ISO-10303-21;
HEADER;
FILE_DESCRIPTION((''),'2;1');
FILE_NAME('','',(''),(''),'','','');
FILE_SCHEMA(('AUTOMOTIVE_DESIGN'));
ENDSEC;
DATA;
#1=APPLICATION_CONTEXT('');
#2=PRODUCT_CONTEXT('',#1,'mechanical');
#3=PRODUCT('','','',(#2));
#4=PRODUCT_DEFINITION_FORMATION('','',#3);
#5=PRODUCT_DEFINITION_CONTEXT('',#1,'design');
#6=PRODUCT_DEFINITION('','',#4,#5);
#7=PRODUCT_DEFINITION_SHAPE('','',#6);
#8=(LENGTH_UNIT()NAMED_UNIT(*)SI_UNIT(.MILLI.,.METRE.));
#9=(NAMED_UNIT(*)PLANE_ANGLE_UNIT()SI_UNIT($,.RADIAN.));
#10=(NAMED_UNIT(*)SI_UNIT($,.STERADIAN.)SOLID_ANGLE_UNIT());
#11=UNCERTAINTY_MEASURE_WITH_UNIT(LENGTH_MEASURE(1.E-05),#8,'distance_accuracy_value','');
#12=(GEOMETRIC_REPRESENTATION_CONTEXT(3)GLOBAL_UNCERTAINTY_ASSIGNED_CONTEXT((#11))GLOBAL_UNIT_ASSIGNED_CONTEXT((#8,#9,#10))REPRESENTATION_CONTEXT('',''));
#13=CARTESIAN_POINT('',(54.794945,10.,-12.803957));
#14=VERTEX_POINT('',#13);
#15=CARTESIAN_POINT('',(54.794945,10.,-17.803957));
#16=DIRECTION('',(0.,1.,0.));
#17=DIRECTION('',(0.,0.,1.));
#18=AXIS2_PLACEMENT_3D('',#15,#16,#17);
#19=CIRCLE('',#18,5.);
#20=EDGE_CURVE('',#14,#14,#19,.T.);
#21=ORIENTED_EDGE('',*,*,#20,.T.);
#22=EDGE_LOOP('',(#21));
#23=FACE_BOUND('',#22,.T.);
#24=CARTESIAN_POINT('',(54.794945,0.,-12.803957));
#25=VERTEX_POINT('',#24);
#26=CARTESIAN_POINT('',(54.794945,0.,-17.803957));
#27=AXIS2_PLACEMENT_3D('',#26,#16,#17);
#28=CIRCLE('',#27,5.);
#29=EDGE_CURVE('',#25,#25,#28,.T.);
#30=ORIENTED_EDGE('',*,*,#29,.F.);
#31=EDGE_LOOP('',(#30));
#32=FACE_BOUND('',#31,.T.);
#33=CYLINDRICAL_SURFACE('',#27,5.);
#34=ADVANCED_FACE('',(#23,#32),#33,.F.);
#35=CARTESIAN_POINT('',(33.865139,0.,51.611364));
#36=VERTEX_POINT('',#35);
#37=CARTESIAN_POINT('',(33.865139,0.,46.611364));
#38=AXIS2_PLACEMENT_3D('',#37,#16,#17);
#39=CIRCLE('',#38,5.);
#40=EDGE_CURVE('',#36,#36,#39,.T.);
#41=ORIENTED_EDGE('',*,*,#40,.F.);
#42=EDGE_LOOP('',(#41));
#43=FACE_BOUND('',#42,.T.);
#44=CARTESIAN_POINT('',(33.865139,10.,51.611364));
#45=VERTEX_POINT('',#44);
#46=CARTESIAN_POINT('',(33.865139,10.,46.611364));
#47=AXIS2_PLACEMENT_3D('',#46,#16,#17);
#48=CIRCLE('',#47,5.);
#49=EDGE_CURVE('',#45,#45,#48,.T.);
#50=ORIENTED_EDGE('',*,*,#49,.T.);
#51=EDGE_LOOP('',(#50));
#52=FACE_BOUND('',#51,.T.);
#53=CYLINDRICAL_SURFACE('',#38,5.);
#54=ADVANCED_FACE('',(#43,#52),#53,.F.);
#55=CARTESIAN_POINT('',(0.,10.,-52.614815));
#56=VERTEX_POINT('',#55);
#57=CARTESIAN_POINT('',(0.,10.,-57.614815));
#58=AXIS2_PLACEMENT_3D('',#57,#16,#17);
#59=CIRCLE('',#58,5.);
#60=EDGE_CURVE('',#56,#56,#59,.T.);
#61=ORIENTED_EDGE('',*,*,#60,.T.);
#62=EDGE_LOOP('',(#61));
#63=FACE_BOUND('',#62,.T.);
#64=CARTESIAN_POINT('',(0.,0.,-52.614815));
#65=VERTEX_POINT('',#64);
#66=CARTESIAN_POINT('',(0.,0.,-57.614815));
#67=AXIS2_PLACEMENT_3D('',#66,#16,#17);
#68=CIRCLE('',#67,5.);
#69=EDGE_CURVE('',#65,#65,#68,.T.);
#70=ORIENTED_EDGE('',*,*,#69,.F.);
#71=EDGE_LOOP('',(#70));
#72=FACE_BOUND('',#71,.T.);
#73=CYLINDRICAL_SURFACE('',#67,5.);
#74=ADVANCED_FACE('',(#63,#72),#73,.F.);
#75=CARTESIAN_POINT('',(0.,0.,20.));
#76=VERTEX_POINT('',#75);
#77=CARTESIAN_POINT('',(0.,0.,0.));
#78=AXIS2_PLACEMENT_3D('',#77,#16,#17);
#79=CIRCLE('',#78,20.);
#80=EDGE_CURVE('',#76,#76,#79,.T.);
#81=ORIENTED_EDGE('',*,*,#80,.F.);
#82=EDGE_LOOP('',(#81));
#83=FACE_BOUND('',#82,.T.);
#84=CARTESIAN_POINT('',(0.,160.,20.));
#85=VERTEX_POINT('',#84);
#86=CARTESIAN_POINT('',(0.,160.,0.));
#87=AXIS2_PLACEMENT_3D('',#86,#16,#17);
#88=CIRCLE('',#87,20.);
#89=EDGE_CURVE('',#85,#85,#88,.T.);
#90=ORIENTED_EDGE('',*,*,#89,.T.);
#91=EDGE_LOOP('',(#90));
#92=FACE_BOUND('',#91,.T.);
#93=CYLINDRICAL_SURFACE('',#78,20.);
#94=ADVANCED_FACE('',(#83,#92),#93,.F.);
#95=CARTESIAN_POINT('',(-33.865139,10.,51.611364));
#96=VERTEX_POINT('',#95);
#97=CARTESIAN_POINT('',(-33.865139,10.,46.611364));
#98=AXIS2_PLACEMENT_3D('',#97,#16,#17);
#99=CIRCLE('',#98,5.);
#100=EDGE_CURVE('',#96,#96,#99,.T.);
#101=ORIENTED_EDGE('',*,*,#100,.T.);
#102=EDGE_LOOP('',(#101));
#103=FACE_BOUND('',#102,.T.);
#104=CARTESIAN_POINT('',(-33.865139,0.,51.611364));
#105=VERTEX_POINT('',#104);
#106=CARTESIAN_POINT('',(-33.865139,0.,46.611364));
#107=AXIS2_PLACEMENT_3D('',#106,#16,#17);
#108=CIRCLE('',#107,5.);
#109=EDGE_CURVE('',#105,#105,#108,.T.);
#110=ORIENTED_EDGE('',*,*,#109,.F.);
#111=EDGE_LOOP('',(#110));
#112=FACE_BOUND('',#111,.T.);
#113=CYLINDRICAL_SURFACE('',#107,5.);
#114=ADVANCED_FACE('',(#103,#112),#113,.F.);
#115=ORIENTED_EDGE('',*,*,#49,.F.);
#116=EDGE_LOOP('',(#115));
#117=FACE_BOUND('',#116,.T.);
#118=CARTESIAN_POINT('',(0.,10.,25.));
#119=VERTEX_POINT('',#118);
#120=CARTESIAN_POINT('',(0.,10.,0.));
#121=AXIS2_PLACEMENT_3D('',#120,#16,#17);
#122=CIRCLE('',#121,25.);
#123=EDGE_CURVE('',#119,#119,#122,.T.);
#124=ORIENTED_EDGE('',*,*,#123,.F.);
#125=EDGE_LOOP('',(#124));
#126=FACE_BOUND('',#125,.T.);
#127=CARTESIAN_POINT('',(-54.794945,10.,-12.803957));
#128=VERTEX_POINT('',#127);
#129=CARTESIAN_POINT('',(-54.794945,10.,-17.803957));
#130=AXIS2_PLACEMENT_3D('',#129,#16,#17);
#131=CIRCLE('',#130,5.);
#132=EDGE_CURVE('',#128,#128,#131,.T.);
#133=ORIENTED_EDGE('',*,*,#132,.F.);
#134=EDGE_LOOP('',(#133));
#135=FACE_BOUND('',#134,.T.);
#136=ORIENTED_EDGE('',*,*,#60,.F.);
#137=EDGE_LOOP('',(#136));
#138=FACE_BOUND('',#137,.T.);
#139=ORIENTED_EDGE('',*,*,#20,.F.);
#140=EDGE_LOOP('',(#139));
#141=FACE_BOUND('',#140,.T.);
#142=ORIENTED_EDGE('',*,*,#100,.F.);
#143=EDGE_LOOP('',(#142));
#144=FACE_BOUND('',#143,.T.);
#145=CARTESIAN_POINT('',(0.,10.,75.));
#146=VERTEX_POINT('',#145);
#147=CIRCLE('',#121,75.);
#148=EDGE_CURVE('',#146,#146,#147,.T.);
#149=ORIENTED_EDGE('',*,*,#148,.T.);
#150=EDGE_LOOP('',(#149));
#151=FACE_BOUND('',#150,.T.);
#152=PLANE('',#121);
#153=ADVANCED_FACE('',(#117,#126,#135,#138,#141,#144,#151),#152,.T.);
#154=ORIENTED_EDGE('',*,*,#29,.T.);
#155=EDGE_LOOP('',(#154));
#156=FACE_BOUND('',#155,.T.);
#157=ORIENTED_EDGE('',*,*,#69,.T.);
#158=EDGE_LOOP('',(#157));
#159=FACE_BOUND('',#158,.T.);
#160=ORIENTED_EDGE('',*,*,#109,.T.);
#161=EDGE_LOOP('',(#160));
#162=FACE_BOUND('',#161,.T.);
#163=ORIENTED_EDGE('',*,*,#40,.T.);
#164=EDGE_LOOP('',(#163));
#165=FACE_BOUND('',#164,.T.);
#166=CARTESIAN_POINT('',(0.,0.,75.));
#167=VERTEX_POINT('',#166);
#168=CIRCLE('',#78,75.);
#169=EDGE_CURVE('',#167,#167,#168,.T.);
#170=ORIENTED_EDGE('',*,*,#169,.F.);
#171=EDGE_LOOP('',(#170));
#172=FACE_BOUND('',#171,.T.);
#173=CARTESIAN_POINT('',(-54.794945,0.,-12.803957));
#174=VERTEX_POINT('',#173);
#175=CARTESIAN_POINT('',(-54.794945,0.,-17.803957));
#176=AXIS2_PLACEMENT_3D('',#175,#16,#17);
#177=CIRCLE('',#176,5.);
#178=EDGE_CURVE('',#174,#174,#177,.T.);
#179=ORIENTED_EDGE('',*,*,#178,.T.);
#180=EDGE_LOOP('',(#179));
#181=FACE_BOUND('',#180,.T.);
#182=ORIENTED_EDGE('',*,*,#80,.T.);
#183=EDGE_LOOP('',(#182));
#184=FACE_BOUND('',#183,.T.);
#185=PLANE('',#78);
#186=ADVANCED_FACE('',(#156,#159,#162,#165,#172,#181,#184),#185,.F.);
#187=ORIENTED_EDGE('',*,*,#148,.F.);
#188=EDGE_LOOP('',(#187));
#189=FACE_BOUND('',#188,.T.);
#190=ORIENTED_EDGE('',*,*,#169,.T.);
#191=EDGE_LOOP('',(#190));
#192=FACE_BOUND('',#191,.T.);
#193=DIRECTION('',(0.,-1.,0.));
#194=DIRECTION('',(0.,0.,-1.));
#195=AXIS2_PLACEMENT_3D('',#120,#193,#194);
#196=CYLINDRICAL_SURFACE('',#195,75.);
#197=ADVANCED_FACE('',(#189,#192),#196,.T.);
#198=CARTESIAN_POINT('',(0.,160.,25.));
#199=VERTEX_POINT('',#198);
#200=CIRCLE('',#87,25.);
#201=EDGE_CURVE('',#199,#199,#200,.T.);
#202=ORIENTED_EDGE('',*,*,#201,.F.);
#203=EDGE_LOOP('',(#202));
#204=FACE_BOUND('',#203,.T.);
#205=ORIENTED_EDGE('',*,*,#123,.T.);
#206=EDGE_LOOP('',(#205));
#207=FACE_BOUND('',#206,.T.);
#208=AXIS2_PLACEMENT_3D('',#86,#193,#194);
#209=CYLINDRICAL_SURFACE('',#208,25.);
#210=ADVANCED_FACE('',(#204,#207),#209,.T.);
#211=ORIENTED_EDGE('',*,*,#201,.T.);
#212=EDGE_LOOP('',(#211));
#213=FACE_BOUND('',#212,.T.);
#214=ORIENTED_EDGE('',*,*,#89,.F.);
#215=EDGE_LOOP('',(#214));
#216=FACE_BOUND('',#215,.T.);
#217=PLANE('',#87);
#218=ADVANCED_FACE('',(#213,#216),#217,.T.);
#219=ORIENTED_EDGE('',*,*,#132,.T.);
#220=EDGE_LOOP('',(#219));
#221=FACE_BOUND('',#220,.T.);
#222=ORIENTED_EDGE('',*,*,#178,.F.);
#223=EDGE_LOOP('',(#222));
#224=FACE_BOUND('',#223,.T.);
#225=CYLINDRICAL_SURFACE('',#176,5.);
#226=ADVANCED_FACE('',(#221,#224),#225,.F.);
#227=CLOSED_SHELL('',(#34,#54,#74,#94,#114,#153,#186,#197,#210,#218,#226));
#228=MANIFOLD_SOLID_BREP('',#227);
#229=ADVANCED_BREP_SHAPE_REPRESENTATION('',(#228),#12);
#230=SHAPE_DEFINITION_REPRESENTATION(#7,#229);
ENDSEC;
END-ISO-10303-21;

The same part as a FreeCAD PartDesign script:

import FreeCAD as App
import Part
import Sketcher

V = App.Vector

doc = App.newDocument("Part")
body = doc.addObject("PartDesign::Body", "Body")

sketch1 = body.newObject("Sketcher::SketchObject", "Sketch")
sketch1.AttachmentSupport = (doc.getObject("XZ_Plane"), [""])
sketch1.MapMode = "FlatFace"
sketch1.addGeometry(Part.Circle(V(0, 0, 0), V(0, 0, 1), 75), False)
sketch1.addConstraint([
    Sketcher.Constraint("Coincident", 0, 3, -1, 1),
    Sketcher.Constraint("Diameter", 0, 150.0),
])
pad1 = body.newObject("PartDesign::Pad", "Pad")
pad1.Profile = sketch1
pad1.Length = 10
pad1.Reversed = True

sketch2 = body.newObject("Sketcher::SketchObject", "Sketch001")
sketch2.AttachmentSupport = (doc.getObject("XZ_Plane"), [""])
sketch2.MapMode = "FlatFace"
sketch2.AttachmentOffset = App.Placement(V(0, 0, -10), App.Rotation())
sketch2.addGeometry([
    Part.Circle(V(0, -58, 0), V(0, 0, 1), 5),
    Part.Circle(V(55, -18, 0), V(0, 0, 1), 5),
    Part.Circle(V(34, 47, 0), V(0, 0, 1), 5),
    Part.Circle(V(-34, 47, 0), V(0, 0, 1), 5),
    Part.Circle(V(-55, -18, 0), V(0, 0, 1), 5),
], False)
sketch2.addConstraint([
    Sketcher.Constraint("Equal", 0, 1),
    Sketcher.Constraint("Equal", 1, 2),
    Sketcher.Constraint("Equal", 2, 3),
    Sketcher.Constraint("Equal", 3, 4),
    Sketcher.Constraint("Symmetric", 2, 3, 3, 3, -2),
    Sketcher.Constraint("Symmetric", 1, 3, 4, 3, -2),
    Sketcher.Constraint("PointOnObject", 0, 3, -2),
    Sketcher.Constraint("Diameter", 0, 10.0),
    Sketcher.Constraint("DistanceX", -1, 1, 2, 3, 33.865139),
    Sketcher.Constraint("DistanceY", 1, 3, 2, 3, 64.415321),
    Sketcher.Constraint("DistanceY", 0, 3, 2, 3, 104.226179),
    Sketcher.Constraint("DistanceX", 4, 3, 1, 3, 109.58989),
    Sketcher.Constraint("DistanceY", 0, 3, -1, 1, 57.614815),
])
pocket1 = body.newObject("PartDesign::Pocket", "Pocket")
pocket1.Profile = sketch2
pocket1.Length = 10
pocket1.Reversed = True

sketch3 = body.newObject("Sketcher::SketchObject", "Sketch002")
sketch3.AttachmentSupport = (doc.getObject("XZ_Plane"), [""])
sketch3.MapMode = "FlatFace"
sketch3.AttachmentOffset = App.Placement(V(0, 0, -10), App.Rotation())
sketch3.addGeometry(Part.Circle(V(0, 0, 0), V(0, 0, 1), 20), False)
sketch3.addConstraint([
    Sketcher.Constraint("Coincident", 0, 3, -1, 1),
    Sketcher.Constraint("Diameter", 0, 40.0),
])
pocket2 = body.newObject("PartDesign::Pocket", "Pocket001")
pocket2.Profile = sketch3
pocket2.Length = 10
pocket2.Reversed = True

sketch4 = body.newObject("Sketcher::SketchObject", "Sketch003")
sketch4.AttachmentSupport = (doc.getObject("XZ_Plane"), [""])
sketch4.MapMode = "FlatFace"
sketch4.AttachmentOffset = App.Placement(V(0, 0, -160), App.Rotation())
sketch4.addGeometry([
    Part.Circle(V(0, 0, 0), V(0, 0, 1), 25),
    Part.Circle(V(0, 0, 0), V(0, 0, 1), 20),
], False)
sketch4.addConstraint([
    Sketcher.Constraint("Coincident", 0, 3, -1, 1),
    Sketcher.Constraint("Coincident", 1, 3, -1, 1),
    Sketcher.Constraint("Diameter", 0, 50.0),
    Sketcher.Constraint("Diameter", 1, 40.0),
])
pad2 = body.newObject("PartDesign::Pad", "Pad001")
pad2.Profile = sketch4
pad2.Length = 150

doc.recompute()
